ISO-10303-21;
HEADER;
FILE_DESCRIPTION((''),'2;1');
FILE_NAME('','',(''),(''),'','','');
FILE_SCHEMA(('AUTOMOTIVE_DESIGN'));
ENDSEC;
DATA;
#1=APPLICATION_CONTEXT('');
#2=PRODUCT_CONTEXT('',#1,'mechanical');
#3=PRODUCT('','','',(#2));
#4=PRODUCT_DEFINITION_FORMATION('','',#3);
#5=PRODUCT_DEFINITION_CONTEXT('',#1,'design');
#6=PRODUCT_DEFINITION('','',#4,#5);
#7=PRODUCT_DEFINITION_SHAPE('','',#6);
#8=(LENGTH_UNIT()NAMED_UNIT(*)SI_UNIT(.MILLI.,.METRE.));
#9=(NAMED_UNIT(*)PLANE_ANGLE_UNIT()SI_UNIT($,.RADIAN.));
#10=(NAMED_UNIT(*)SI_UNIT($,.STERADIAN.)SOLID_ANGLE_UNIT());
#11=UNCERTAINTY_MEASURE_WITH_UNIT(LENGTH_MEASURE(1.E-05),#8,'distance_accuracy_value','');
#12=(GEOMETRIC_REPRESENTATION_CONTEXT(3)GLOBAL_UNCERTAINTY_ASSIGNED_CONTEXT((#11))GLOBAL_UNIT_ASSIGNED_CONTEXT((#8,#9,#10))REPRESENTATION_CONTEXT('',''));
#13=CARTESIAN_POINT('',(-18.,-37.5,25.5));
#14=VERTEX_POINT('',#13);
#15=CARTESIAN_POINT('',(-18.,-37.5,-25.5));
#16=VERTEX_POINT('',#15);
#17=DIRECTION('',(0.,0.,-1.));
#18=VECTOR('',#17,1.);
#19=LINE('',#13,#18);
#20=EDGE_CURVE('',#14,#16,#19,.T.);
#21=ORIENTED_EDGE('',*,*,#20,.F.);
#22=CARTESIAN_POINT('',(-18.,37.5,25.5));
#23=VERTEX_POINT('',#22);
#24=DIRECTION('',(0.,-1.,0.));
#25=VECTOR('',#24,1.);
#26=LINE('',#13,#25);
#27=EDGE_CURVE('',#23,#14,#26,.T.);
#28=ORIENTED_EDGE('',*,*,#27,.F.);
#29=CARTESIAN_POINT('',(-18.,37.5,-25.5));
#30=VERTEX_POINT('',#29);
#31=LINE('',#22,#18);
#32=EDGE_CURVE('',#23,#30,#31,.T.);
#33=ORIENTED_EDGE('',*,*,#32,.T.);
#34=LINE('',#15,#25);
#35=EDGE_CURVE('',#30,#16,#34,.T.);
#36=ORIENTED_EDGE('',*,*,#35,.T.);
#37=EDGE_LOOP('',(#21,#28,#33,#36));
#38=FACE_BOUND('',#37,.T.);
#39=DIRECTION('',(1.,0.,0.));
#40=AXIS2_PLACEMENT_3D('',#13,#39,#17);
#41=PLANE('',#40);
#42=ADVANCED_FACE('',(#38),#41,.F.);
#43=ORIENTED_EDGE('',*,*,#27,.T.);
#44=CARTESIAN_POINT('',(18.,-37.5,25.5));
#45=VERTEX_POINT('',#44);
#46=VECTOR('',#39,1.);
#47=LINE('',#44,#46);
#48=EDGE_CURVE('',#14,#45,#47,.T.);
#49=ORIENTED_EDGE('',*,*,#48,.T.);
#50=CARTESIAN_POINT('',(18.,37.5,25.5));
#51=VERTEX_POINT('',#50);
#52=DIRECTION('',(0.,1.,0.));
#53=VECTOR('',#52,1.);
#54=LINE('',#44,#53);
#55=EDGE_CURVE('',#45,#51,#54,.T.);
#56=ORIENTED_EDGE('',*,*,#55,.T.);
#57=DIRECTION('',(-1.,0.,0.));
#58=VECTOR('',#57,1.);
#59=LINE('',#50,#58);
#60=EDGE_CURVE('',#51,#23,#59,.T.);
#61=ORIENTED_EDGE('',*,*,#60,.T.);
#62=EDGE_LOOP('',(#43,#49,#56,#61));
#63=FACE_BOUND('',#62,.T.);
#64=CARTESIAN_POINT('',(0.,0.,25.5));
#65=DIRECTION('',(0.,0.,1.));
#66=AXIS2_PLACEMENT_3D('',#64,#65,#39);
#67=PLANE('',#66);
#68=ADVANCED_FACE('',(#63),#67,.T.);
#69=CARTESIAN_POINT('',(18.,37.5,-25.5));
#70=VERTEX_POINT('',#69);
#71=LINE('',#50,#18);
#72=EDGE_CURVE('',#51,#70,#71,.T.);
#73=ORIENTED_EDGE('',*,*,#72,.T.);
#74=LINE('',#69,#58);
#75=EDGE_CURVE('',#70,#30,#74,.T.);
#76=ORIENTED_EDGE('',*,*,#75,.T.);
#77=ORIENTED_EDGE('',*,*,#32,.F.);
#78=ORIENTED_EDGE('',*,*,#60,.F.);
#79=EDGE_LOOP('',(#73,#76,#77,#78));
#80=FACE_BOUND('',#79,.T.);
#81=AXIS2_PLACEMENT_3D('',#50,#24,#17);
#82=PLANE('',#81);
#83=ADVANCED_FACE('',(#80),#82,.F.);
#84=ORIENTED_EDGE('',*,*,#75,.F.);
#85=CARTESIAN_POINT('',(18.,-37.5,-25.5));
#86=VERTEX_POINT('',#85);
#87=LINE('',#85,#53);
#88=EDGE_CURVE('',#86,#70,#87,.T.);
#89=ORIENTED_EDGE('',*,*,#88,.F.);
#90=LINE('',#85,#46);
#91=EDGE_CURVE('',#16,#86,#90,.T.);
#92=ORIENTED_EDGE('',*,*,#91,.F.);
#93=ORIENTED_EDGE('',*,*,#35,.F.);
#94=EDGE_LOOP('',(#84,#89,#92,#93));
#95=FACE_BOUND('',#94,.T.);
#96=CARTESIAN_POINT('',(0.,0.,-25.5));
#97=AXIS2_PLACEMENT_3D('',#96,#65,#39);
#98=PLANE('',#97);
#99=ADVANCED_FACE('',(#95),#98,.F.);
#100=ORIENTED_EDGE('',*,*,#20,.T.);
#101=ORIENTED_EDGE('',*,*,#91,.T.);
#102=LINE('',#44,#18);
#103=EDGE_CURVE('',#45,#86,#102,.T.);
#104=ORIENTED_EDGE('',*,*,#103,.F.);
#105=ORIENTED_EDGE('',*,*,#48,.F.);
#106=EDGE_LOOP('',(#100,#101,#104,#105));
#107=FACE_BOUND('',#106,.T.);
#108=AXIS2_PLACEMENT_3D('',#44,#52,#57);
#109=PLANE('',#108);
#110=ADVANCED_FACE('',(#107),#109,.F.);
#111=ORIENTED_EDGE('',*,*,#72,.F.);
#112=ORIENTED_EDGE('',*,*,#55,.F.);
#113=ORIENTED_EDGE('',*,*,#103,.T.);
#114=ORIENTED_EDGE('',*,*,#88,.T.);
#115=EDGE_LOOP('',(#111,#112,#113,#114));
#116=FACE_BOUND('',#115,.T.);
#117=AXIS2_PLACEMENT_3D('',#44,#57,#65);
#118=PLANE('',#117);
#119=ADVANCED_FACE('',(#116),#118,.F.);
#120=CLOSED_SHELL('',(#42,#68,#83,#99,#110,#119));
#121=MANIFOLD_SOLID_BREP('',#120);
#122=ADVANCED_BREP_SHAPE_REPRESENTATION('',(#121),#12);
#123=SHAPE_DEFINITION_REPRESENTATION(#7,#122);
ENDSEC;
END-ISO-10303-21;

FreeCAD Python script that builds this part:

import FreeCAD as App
import Part
import Sketcher

doc = App.newDocument("Part")
params = doc.addObject("Spreadsheet::Sheet", "Params")
for row, (alias, value) in enumerate([
    ("sketch1_width", "36 mm"),
    ("sketch1_height", "75 mm"),
    ("pad1_length", "51 mm"),
], start=1):
    params.set(f"A{row}", alias)
    params.set(f"B{row}", "=" + value)
    params.setAlias(f"B{row}", alias)

body = doc.addObject("PartDesign::Body", "Body")

# Sketch on XY plane
sketch1 = body.newObject("Sketcher::SketchObject", "Sketch")
sketch1.AttachmentSupport = (doc.getObject("XY_Plane"), [""])
sketch1.MapMode = "FlatFace"
sketch1.addGeometry([
    Part.LineSegment(App.Vector(-18, 37.5, 0), App.Vector(-18, -37.5, 0)),
    Part.LineSegment(App.Vector(-18, -37.5, 0), App.Vector(18, -37.5, 0)),
    Part.LineSegment(App.Vector(18, -37.5, 0), App.Vector(18, 37.5, 0)),
    Part.LineSegment(App.Vector(18, 37.5, 0), App.Vector(-18, 37.5, 0)),
], False)
sketch1.addConstraint([
    Sketcher.Constraint("Coincident", 0, 2, 1, 1),
    Sketcher.Constraint("Coincident", 1, 2, 2, 1),
    Sketcher.Constraint("Coincident", 2, 2, 3, 1),
    Sketcher.Constraint("Coincident", 3, 2, 0, 1),
    Sketcher.Constraint("Vertical", 0),
    Sketcher.Constraint("Horizontal", 1),
    Sketcher.Constraint("Vertical", 2),
    Sketcher.Constraint("Horizontal", 3),
    Sketcher.Constraint("Symmetric", 0, 2, 2, 2, -1, 1),
    Sketcher.Constraint("DistanceX", 1, 1, 1, 2, 36.0),
    Sketcher.Constraint("DistanceY", 0, 2, 0, 1, 75.0),
])
sketch1.setExpression("Constraints[9]", "Params.sketch1_width")
sketch1.setExpression("Constraints[10]", "Params.sketch1_height")
pad1 = body.newObject("PartDesign::Pad", "Pad")
pad1.Profile = sketch1
pad1.setExpression("Length", "Params.pad1_length")
pad1.Midplane = True

doc.recompute()
